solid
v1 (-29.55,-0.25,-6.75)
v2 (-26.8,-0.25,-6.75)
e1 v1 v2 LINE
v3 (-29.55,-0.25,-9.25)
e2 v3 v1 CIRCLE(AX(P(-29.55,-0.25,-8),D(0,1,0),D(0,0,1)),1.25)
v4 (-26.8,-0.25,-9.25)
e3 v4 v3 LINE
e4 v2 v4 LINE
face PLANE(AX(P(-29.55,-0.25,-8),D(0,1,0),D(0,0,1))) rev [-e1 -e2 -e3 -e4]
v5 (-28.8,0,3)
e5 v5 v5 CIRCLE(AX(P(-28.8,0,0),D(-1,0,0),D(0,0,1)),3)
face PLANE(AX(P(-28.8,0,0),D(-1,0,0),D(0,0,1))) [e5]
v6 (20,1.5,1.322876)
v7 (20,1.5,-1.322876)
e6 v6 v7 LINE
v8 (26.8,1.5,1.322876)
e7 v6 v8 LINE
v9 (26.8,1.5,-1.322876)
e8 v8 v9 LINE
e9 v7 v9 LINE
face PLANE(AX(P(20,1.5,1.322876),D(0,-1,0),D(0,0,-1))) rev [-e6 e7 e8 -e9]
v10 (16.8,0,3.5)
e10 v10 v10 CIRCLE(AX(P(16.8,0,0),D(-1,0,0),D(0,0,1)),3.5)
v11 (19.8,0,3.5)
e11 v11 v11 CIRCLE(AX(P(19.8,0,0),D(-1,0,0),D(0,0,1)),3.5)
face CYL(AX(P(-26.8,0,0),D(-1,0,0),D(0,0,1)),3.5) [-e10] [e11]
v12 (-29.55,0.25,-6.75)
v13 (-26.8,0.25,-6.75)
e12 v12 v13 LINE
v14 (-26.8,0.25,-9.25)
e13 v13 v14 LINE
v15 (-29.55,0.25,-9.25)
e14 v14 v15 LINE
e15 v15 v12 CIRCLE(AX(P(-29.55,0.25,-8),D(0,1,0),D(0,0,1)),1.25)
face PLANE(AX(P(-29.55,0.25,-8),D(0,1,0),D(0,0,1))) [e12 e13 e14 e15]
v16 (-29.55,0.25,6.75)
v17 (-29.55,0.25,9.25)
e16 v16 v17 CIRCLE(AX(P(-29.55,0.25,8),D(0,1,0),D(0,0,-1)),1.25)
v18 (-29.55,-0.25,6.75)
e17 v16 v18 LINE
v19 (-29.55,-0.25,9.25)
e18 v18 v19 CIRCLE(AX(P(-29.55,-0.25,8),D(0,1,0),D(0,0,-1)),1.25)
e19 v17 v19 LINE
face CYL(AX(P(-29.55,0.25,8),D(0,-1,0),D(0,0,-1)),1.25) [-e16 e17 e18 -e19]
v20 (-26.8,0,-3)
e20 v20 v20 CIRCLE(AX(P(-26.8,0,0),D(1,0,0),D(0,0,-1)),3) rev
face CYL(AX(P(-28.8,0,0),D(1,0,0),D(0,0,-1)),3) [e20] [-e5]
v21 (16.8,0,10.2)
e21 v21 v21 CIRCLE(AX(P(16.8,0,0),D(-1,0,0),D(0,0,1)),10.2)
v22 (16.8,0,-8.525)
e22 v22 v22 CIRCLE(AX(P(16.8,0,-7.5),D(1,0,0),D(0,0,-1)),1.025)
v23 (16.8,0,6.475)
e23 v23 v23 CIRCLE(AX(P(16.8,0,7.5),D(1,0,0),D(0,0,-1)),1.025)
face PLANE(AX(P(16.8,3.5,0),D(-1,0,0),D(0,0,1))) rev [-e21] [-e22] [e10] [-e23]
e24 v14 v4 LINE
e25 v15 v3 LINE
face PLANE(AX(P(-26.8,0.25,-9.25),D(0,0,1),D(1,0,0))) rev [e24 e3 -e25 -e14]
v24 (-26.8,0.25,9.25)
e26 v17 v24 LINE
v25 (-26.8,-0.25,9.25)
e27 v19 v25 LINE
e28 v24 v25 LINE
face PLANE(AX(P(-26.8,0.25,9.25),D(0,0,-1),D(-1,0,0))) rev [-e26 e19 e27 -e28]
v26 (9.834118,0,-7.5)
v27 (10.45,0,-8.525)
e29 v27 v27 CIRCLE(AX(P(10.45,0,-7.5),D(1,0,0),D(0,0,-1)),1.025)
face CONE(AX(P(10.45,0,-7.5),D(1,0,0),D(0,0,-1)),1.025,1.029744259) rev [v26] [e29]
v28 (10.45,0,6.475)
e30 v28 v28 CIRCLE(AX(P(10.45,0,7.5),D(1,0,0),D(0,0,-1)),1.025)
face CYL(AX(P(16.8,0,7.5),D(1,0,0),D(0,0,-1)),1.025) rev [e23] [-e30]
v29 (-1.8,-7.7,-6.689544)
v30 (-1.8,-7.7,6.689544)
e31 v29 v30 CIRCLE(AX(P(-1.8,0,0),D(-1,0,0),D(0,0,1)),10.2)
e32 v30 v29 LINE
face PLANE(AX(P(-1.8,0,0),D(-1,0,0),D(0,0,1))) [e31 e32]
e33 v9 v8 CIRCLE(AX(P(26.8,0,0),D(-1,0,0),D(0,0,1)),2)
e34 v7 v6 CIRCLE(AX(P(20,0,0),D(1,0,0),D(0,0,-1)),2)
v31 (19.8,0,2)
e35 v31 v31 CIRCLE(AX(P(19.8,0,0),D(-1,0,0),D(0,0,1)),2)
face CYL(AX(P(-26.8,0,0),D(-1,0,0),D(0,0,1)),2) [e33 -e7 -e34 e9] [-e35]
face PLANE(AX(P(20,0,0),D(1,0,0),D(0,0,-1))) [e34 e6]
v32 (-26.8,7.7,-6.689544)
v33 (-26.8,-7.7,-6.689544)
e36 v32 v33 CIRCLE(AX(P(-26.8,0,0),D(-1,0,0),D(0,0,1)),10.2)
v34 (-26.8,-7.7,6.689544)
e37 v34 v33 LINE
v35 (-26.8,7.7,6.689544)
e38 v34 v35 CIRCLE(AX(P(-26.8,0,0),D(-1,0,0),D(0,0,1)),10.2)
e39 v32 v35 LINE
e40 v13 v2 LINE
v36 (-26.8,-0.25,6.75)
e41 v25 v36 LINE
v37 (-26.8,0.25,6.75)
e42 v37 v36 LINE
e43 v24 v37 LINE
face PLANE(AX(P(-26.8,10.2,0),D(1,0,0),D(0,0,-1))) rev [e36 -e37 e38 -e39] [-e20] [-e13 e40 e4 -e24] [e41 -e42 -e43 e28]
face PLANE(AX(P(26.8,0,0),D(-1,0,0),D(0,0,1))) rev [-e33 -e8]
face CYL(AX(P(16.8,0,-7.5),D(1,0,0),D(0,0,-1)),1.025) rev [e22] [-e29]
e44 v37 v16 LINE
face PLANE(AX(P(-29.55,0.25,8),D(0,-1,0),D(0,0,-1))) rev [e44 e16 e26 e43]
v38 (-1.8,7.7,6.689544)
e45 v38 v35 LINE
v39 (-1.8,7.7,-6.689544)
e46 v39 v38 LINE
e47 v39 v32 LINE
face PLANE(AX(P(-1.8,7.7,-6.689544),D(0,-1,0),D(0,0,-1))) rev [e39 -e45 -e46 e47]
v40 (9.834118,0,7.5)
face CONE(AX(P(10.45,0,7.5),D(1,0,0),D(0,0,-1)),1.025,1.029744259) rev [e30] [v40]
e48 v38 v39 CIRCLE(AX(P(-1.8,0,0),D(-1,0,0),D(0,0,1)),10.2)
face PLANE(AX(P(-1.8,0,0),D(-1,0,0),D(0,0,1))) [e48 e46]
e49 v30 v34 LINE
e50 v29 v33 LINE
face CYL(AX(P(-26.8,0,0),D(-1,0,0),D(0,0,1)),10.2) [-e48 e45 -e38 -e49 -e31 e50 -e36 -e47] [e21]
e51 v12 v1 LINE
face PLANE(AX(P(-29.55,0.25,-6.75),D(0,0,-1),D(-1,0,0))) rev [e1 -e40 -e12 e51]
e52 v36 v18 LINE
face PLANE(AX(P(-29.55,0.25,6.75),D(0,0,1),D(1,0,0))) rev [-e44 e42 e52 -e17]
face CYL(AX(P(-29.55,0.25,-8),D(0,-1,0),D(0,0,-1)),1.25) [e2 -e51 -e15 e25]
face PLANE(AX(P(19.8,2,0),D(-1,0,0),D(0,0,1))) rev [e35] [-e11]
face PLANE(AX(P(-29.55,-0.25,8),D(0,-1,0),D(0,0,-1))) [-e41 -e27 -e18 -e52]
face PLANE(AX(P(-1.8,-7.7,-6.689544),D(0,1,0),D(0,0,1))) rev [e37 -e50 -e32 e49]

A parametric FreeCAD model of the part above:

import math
import FreeCAD as App
import Part
import Sketcher

V = App.Vector


def add_polygon(sketch, points):
    """Adds a closed chain of lines whose ends are joined by coincident constraints."""
    first, n = sketch.GeometryCount, len(points)
    for a, b in zip(points, points[1:] + points[:1]):
        sketch.addGeometry(Part.LineSegment(App.Vector(*a, 0), App.Vector(*b, 0)), False)
    for i in range(n):
        sketch.addConstraint(Sketcher.Constraint("Coincident", first + i, 2, first + (i + 1) % n, 1))

doc = App.newDocument("Part")
body = doc.addObject("PartDesign::Body", "Body")

sketch1 = doc.addObject("Sketcher::SketchObject", "Sketch")
body.addObject(sketch1)
sketch1.AttachmentSupport = (doc.XY_Plane, [""])
sketch1.MapMode = "FlatFace"
add_polygon(sketch1, [(-26.8, 0), (26.8, 0), (26.8, 2), (19.8, 2), (19.8, 3.5), (16.8, 3.5), (16.8, 10.2), (-26.8, 10.2)])
sketch1.addConstraint([
    Sketcher.Constraint("Horizontal", 0),
    Sketcher.Constraint("Vertical", 1),
    Sketcher.Constraint("Horizontal", 2),
    Sketcher.Constraint("Vertical", 3),
    Sketcher.Constraint("Horizontal", 4),
    Sketcher.Constraint("Vertical", 5),
    Sketcher.Constraint("Horizontal", 6),
    Sketcher.Constraint("Vertical", 7),
    Sketcher.Constraint("Symmetric", 0, 2, 7, 2, -1, 1),
    Sketcher.Constraint("DistanceX", 2, 2, 2, 1, 7.0),
    Sketcher.Constraint("DistanceX", 4, 2, 4, 1, 3.0),
    Sketcher.Constraint("DistanceY", 1, 1, 1, 2, 2.0),
    Sketcher.Constraint("DistanceX", 0, 1, 0, 2, 53.6),
    Sketcher.Constraint("DistanceY", 3, 1, 3, 2, 1.5),
    Sketcher.Constraint("DistanceY", 5, 1, 5, 2, 6.7),
])
revolution = doc.addObject("PartDesign::Revolution", "Revolution")
body.addObject(revolution)
revolution.Profile = sketch1
revolution.ReferenceAxis = (sketch1, ["H_Axis"])
revolution.Angle = 360

sketch2 = doc.addObject("Sketcher::SketchObject", "Sketch001")
body.addObject(sketch2)
sketch2.AttachmentSupport = (doc.YZ_Plane, [""])
sketch2.MapMode = "FlatFace"
sketch2.AttachmentOffset = App.Placement(V(0, 0, 20), App.Rotation())
sketch2.addGeometry([
    Part.LineSegment(V(1.5, 1.3, 0), V(1.5, -1.3, 0)),
    Part.ArcOfCircle(Part.Circle(V(0, 0, 0), V(0, 0, 1), 2), math.radians(-41), math.radians(41)),
], False)
sketch2.addConstraint([
    Sketcher.Constraint("Coincident", 0, 1, 1, 2),
    Sketcher.Constraint("Coincident", 1, 1, 0, 2),
    Sketcher.Constraint("Vertical", 0),
    Sketcher.Constraint("Coincident", 1, 3, -1, 1),
    Sketcher.Constraint("Radius", 1, 2.0),
    Sketcher.Constraint("DistanceX", -1, 1, 0, 1, 1.5),
])
pocket1 = doc.addObject("PartDesign::Pocket", "Pocket")
body.addObject(pocket1)
pocket1.Profile = sketch2
pocket1.Length = 6.8
pocket1.Reversed = True

sketch3 = doc.addObject("Sketcher::SketchObject", "Sketch002")
body.addObject(sketch3)
sketch3.AttachmentSupport = (doc.YZ_Plane, [""])
sketch3.MapMode = "FlatFace"
sketch3.AttachmentOffset = App.Placement(V(0, 0, -26.8), App.Rotation())
sketch3.addGeometry([
    Part.LineSegment(V(8, -7, 0), V(8, 7, 0)),
    Part.ArcOfCircle(Part.Circle(V(0, 0, 0), V(0, 0, 1), 10), math.radians(-41), math.radians(41)),
    Part.LineSegment(V(-8, 7, 0), V(-8, -7, 0)),
    Part.ArcOfCircle(Part.Circle(V(0, 0, 0), V(0, 0, 1), 10), math.radians(139), math.radians(221)),
], False)
sketch3.addConstraint([
    Sketcher.Constraint("Coincident", 0, 1, 1, 1),
    Sketcher.Constraint("Coincident", 1, 2, 0, 2),
    Sketcher.Constraint("Coincident", 2, 1, 3, 1),
    Sketcher.Constraint("Coincident", 3, 2, 2, 2),
    Sketcher.Constraint("Vertical", 0),
    Sketcher.Constraint("Vertical", 2),
    Sketcher.Constraint("Coincident", 1, 3, -1, 1),
    Sketcher.Constraint("Coincident", 3, 3, -1, 1),
    Sketcher.Constraint("Equal", 1, 3),
    Sketcher.Constraint("Horizontal", 1, 2, 2, 1),
    Sketcher.Constraint("Radius", 1, 10.2),
    Sketcher.Constraint("DistanceX", -1, 1, 0, 1, 7.7),
])
pocket2 = doc.addObject("PartDesign::Pocket", "Pocket001")
body.addObject(pocket2)
pocket2.Profile = sketch3
pocket2.Length = 25
pocket2.Reversed = True

sketch4 = doc.addObject("Sketcher::SketchObject", "Sketch003")
body.addObject(sketch4)
sketch4.AttachmentSupport = (doc.YZ_Plane, [""])
sketch4.MapMode = "FlatFace"
sketch4.AttachmentOffset = App.Placement(V(0, 0, 16.8), App.Rotation())
sketch4.addGeometry([
    Part.Circle(V(0, 7.5, 0), V(0, 0, 1), 1),
    Part.Circle(V(0, -7.5, 0), V(0, 0, 1), 1),
], False)
sketch4.addConstraint([
    Sketcher.Constraint("Equal", 0, 1),
    Sketcher.Constraint("Symmetric", 0, 3, 1, 3, -1, 1),
    Sketcher.Constraint("PointOnObject", 0, 3, -2),
    Sketcher.Constraint("Diameter", 0, 2.05),
    Sketcher.Constraint("DistanceY", 1, 3, 0, 3, 15.0),
])
doc.recompute()
hole = doc.addObject("PartDesign::Hole", "Hole")
body.addObject(hole)
hole.Profile = sketch4
hole.ThreadType = "None"
hole.Diameter = 2.05
hole.DepthType = "Dimension"
hole.Depth = 6.35
hole.DrillPoint = "Angled"
hole.DrillPointAngle = 118

sketch5 = doc.addObject("Sketcher::SketchObject", "Sketch004")
body.addObject(sketch5)
sketch5.AttachmentSupport = (doc.XZ_Plane, [""])
sketch5.MapMode = "FlatFace"
sketch5.addGeometry([
    Part.LineSegment(V(-26.8, -9.2, 0), V(-29.6, -9.2, 0)),
    Part.ArcOfCircle(Part.Circle(V(-29.6, -8, 0), V(0, 0, 1), 1.2), math.radians(90), math.radians(270)),
    Part.LineSegment(V(-29.6, -6.8, 0), V(-26.8, -6.8, 0)),
    Part.LineSegment(V(-26.8, -6.8, 0), V(-26.8, -9.2, 0)),
    Part.LineSegment(V(-26.8, 9.2, 0), V(-26.8, 6.8, 0)),
    Part.LineSegment(V(-26.8, 6.8, 0), V(-29.6, 6.8, 0)),
    Part.ArcOfCircle(Part.Circle(V(-29.6, 8, 0), V(0, 0, 1), 1.2), math.radians(90), math.radians(270)),
    Part.LineSegment(V(-29.6, 9.2, 0), V(-26.8, 9.2, 0)),
], False)
sketch5.addConstraint([
    Sketcher.Constraint("Tangent", 0, 2, 1, 2),
    Sketcher.Constraint("Tangent", 1, 1, 2, 1),
    Sketcher.Constraint("Coincident", 2, 2, 3, 1),
    Sketcher.Constraint("Coincident", 3, 2, 0, 1),
    Sketcher.Constraint("Coincident", 4, 2, 5, 1),
    Sketcher.Constraint("Tangent", 5, 2, 6, 2),
    Sketcher.Constraint("Tangent", 6, 1, 7, 1),
    Sketcher.Constraint("Coincident", 7, 2, 4, 1),
    Sketcher.Constraint("Horizontal", 0),
    Sketcher.Constraint("Horizontal", 2),
    Sketcher.Constraint("Vertical", 3),
    Sketcher.Constraint("Vertical", 4),
    Sketcher.Constraint("Horizontal", 5),
    Sketcher.Constraint("Horizontal", 7),
    Sketcher.Constraint("Equal", 1, 6),
    Sketcher.Constraint("Symmetric", 1, 3, 6, 3, -1),
    Sketcher.Constraint("Vertical", 3, 2, 4, 2),
    Sketcher.Constraint("Radius", 1, 1.25),
    Sketcher.Constraint("DistanceY", 1, 3, -1, 1, 8.0),
    Sketcher.Constraint("DistanceX", 0, 2, 0, 1, 2.75),
    Sketcher.Constraint("DistanceX", 2, 2, -1, 1, 26.8),
])
pad1 = doc.addObject("PartDesign::Pad", "Pad")
body.addObject(pad1)
pad1.Profile = sketch5
pad1.Length = 0.5
pad1.Midplane = True

sketch6 = doc.addObject("Sketcher::SketchObject", "Sketch005")
body.addObject(sketch6)
sketch6.AttachmentSupport = (doc.YZ_Plane, [""])
sketch6.MapMode = "FlatFace"
sketch6.AttachmentOffset = App.Placement(V(0, 0, -26.8), App.Rotation())
sketch6.addGeometry(Part.Circle(V(0, 0, 0), V(0, 0, 1), 3), False)
sketch6.addConstraint([
    Sketcher.Constraint("Coincident", 0, 3, -1, 1),
    Sketcher.Constraint("Diameter", 0, 6.0),
])
pad2 = doc.addObject("PartDesign::Pad", "Pad001")
body.addObject(pad2)
pad2.Profile = sketch6
pad2.Length = 2
pad2.Reversed = True

doc.recompute()
